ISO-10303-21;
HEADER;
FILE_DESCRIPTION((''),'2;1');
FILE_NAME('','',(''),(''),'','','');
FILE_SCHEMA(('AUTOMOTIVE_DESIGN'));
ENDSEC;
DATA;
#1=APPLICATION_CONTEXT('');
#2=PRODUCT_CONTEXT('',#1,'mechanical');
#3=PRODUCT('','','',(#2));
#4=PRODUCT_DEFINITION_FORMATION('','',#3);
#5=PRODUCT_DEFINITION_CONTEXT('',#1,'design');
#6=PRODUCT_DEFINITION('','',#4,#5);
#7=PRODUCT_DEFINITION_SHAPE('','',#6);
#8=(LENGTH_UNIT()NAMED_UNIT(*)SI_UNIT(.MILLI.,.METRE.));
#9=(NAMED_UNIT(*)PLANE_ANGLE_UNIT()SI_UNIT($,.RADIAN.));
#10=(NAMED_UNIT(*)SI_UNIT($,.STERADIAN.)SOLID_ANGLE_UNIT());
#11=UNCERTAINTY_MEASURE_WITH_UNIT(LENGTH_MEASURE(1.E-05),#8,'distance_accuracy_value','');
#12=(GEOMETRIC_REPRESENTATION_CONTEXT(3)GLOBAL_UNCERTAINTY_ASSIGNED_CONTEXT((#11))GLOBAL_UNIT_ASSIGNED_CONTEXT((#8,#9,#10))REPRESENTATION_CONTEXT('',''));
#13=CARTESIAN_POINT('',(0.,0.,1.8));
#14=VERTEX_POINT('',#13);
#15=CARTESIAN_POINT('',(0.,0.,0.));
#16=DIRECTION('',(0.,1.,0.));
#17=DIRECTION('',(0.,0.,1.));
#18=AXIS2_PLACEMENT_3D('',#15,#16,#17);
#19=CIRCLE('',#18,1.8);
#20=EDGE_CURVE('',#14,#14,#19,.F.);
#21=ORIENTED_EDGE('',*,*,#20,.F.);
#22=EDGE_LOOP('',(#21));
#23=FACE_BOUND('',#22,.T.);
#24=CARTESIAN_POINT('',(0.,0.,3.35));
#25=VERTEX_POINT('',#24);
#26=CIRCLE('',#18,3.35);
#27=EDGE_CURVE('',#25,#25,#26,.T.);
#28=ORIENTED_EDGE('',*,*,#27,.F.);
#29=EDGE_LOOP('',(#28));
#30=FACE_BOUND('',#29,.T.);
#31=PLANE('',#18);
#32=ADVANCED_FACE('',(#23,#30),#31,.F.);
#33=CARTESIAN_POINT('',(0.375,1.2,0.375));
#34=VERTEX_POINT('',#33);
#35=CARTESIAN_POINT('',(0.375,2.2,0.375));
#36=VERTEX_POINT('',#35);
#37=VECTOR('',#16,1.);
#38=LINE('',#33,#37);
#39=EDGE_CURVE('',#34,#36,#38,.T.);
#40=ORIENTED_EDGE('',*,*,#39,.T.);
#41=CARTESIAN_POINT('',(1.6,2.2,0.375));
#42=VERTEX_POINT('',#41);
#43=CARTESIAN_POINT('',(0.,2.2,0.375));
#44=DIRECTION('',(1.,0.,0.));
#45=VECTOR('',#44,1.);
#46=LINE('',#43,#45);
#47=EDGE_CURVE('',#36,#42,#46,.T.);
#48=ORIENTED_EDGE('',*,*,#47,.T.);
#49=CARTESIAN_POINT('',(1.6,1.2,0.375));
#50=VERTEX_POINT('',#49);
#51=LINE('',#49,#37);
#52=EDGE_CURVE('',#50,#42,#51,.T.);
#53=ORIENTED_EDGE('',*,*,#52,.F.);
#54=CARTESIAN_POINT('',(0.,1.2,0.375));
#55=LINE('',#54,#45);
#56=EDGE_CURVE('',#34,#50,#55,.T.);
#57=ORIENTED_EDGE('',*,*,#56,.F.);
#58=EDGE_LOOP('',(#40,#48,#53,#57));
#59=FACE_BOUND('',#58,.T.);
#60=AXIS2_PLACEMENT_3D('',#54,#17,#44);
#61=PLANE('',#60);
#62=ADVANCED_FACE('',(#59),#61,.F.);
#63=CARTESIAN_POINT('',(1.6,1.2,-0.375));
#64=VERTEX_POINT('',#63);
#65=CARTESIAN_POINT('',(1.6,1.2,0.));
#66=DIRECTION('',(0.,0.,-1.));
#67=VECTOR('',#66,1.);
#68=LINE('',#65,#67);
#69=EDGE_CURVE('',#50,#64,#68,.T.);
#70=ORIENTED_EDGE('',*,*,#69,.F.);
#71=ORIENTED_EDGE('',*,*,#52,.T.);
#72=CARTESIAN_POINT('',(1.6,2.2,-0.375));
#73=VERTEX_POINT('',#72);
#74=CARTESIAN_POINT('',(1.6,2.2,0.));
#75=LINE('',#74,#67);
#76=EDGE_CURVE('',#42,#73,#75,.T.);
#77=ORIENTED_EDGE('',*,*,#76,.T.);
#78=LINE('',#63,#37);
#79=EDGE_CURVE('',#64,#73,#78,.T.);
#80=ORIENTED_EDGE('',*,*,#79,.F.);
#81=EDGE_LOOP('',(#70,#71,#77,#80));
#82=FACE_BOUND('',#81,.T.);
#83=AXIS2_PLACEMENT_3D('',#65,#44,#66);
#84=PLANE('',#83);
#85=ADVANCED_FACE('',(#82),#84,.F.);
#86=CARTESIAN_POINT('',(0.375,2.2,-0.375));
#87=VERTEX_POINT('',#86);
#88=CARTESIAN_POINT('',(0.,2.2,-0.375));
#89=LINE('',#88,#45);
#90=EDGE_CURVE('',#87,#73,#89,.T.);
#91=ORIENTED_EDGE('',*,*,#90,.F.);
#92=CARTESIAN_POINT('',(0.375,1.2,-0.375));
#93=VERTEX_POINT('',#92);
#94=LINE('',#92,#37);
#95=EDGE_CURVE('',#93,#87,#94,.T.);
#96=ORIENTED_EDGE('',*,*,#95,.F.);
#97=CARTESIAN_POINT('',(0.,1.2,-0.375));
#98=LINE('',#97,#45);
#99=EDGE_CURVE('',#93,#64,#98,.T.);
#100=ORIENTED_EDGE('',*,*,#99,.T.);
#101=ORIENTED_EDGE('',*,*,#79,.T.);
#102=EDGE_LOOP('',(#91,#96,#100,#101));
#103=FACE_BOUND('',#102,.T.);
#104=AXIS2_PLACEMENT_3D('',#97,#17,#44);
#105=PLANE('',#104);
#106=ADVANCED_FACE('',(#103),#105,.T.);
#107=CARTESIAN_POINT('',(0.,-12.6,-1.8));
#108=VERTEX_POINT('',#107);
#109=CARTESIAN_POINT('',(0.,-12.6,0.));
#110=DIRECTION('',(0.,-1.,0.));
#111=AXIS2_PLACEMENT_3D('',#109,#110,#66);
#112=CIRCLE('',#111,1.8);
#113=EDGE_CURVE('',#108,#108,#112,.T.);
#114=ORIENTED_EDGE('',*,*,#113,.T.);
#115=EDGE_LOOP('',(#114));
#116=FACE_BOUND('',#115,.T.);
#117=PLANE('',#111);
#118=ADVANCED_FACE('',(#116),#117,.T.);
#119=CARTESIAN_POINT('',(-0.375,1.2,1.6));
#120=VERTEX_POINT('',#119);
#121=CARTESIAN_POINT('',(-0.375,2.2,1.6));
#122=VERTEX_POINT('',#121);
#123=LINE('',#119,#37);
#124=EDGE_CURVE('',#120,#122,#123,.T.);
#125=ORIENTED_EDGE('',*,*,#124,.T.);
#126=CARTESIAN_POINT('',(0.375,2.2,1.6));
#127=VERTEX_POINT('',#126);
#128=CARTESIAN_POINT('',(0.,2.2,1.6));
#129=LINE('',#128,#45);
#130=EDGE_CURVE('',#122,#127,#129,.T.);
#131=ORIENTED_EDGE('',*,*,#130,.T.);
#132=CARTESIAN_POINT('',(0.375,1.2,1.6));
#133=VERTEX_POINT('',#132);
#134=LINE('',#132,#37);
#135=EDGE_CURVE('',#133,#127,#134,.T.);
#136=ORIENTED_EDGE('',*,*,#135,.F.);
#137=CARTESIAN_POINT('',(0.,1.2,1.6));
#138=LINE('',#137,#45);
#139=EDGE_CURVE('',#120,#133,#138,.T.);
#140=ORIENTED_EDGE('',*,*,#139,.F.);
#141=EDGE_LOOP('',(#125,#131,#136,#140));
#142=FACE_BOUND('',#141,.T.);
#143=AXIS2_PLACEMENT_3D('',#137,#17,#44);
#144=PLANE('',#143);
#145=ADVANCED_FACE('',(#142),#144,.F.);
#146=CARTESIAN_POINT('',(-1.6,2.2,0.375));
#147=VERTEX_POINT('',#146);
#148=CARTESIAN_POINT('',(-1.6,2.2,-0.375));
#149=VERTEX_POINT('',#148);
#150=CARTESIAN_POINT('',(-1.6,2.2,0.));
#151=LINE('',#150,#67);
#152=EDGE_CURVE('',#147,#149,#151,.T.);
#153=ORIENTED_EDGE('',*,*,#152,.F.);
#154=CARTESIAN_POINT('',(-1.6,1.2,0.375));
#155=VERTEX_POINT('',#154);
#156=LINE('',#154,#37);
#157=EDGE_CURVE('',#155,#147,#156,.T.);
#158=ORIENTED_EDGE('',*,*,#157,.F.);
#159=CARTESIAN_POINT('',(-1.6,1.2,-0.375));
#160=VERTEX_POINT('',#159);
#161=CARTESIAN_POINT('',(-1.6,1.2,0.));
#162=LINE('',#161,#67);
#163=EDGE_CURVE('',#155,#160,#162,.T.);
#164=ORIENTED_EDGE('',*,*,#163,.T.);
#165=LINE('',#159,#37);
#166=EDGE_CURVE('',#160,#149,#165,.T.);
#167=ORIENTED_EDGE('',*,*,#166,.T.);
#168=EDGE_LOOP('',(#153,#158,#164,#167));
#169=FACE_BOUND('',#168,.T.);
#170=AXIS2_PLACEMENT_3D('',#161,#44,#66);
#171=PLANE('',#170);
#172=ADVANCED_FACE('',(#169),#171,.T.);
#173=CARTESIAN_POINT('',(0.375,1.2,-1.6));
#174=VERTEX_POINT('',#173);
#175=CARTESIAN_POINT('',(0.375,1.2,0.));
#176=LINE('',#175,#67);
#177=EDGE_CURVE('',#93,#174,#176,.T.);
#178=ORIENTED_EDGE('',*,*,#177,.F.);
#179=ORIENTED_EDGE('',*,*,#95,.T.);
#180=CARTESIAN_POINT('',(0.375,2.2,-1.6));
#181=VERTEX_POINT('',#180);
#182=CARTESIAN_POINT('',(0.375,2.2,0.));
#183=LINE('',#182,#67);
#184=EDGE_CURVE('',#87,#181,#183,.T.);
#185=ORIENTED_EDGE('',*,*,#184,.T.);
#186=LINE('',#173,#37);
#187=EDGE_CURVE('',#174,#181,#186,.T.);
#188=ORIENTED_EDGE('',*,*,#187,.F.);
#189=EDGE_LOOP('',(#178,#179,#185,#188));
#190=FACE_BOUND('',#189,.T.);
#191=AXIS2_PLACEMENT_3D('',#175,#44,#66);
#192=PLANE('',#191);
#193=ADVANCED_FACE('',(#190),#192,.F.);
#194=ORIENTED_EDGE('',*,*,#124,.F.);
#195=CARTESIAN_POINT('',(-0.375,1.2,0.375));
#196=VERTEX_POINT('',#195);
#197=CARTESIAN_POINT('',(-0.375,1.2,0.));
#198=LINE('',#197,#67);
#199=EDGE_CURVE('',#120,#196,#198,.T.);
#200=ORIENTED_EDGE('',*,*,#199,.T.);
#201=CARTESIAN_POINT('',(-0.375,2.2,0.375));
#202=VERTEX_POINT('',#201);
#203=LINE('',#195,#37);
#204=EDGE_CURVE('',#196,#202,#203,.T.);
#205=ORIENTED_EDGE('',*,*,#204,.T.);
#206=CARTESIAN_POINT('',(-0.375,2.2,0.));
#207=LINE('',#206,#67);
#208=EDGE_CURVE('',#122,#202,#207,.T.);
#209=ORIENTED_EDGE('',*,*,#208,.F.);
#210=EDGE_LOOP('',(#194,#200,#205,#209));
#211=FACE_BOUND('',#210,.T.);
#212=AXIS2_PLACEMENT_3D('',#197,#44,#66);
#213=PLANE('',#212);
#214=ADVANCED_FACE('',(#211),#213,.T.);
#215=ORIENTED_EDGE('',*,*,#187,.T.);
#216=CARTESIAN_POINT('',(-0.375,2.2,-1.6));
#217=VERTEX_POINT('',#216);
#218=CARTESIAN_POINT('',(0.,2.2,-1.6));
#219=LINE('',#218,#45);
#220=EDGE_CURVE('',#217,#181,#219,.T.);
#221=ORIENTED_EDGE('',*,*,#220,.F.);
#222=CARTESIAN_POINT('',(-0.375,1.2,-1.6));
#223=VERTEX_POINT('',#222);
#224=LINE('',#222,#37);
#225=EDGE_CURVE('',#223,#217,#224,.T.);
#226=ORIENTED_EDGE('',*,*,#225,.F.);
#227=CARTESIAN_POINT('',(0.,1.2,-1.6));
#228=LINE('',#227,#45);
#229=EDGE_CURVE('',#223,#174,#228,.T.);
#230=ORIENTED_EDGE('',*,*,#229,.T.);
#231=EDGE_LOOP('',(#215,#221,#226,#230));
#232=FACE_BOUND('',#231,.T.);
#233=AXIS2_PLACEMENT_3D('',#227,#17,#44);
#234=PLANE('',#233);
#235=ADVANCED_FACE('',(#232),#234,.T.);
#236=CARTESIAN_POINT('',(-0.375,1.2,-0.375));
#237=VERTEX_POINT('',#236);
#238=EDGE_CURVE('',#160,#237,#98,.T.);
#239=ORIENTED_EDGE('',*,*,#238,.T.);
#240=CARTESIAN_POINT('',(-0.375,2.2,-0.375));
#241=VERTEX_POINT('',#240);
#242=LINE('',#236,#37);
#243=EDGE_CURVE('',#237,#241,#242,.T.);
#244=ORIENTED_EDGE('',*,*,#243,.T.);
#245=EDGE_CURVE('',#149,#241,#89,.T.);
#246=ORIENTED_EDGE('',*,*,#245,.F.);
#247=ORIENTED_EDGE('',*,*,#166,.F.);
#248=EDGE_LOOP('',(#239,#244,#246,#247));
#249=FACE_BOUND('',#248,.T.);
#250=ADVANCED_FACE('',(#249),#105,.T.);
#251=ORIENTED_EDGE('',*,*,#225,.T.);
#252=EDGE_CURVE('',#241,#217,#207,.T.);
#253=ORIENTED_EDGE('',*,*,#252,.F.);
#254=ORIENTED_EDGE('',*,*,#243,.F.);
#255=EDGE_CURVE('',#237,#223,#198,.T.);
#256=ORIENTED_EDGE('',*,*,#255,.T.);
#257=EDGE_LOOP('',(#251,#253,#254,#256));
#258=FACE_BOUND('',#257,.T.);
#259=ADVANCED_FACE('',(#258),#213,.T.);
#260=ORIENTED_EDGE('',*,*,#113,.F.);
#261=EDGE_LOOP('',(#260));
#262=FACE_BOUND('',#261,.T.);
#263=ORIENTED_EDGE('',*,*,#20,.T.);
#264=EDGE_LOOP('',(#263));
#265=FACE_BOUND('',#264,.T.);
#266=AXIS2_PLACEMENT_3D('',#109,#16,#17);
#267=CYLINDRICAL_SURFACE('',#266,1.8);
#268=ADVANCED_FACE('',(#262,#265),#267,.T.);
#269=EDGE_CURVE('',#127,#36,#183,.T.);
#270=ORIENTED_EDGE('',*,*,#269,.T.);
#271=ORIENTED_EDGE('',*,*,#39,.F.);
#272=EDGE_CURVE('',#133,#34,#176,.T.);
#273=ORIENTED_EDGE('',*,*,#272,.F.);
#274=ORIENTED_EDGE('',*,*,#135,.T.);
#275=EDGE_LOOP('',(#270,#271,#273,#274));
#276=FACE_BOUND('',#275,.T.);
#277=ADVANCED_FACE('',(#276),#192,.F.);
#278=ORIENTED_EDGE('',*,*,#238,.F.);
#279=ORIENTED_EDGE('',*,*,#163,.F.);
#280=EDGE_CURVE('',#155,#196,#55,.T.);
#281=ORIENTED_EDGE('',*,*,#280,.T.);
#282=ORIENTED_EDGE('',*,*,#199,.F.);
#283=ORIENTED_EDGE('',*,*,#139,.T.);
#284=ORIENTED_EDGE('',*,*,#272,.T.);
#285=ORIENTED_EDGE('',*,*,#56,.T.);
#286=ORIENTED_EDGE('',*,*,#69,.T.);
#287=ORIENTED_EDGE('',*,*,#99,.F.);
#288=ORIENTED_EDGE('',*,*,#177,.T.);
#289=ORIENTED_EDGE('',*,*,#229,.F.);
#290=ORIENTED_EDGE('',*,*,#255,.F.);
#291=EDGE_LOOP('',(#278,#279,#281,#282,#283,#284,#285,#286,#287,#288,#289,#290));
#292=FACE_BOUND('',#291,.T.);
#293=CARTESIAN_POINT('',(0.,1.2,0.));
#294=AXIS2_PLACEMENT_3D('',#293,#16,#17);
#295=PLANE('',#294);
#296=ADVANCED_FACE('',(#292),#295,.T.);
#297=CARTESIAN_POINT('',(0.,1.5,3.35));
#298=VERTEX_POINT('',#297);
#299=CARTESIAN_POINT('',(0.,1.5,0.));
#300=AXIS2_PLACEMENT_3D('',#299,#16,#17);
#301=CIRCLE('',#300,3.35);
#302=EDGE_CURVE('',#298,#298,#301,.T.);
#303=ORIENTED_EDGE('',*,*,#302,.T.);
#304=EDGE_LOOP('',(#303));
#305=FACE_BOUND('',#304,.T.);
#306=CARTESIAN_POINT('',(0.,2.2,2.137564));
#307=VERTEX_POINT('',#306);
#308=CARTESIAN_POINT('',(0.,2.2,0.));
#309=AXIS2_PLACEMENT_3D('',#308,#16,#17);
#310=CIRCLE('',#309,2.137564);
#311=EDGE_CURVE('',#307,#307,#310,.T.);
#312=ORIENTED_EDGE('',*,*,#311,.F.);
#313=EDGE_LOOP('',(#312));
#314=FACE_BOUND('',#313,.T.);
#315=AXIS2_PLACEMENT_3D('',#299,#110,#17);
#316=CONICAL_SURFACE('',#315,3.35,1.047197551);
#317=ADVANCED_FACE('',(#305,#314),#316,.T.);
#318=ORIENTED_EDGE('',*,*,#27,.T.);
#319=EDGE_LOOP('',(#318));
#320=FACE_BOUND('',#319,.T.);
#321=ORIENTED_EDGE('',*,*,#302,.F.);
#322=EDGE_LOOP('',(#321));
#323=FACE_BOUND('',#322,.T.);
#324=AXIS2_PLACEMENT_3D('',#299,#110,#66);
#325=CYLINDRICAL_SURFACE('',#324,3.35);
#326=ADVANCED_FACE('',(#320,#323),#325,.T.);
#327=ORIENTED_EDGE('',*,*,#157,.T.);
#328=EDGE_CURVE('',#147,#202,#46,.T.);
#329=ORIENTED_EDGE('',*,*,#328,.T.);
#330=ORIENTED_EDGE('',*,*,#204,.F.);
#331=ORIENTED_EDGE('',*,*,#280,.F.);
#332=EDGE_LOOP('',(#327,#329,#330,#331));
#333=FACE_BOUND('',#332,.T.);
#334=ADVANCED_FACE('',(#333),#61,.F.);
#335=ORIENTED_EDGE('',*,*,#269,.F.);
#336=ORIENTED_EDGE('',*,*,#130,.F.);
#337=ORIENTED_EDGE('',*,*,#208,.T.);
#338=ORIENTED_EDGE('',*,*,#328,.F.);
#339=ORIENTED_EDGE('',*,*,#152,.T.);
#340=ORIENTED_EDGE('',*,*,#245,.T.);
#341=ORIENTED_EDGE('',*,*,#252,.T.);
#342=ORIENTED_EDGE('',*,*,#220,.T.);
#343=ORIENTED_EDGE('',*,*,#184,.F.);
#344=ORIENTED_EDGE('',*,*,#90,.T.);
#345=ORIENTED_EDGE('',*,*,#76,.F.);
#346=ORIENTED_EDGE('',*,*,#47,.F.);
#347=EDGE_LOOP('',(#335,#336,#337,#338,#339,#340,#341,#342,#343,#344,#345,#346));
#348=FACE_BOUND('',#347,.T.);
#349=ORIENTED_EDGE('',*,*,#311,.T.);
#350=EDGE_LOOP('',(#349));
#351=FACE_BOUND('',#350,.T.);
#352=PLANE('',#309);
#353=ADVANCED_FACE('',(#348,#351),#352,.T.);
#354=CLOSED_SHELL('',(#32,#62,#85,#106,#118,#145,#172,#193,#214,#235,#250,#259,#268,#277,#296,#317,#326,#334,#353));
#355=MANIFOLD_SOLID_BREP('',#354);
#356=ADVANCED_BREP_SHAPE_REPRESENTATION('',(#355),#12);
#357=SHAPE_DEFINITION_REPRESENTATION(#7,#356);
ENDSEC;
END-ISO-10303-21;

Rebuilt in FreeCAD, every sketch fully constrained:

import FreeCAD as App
import Part
import Sketcher
from FreeCAD import Vector
Q = App.Units.Quantity

doc = App.newDocument("Part")
body = doc.addObject("PartDesign::Body", "Body")

# Sketch on XZ plane
sketch1 = doc.addObject("Sketcher::SketchObject", "Sketch")
body.addObject(sketch1)
sketch1.AttachmentSupport = (doc.XZ_Plane, [""])
sketch1.MapMode = "FlatFace"
sketch1.addGeometry(Part.Circle(Vector(0, 0, 0), Vector(0, 0, 1), 3.4), False)
sketch1.addConstraint(Sketcher.Constraint("Coincident", 0, 3, -1, 1))
sketch1.addConstraint(Sketcher.Constraint("Diameter", 0, Q("6.7 mm")))
pad1 = doc.addObject("PartDesign::Pad", "Pad")
body.addObject(pad1)
pad1.Profile = sketch1
pad1.Length = 1.5
pad1.Reversed = True

# Sketch on XZ plane
sketch2 = doc.addObject("Sketcher::SketchObject", "Sketch001")
body.addObject(sketch2)
sketch2.AttachmentSupport = (doc.XZ_Plane, [""])
sketch2.MapMode = "FlatFace"
sketch2.AttachmentOffset = App.Placement(Vector(0, 0, -1.5), App.Rotation())
sketch2.addGeometry(Part.Circle(Vector(0, 0, 0), Vector(0, 0, 1), 3.4), False)
sketch2.addConstraint(Sketcher.Constraint("Coincident", 0, 3, -1, 1))
sketch2.addConstraint(Sketcher.Constraint("Diameter", 0, Q("6.7 mm")))
pad2 = doc.addObject("PartDesign::Pad", "Pad001")
body.addObject(pad2)
pad2.Profile = sketch2
pad2.Length = 0.7
pad2.Reversed = True
pad2.TaperAngle = -60

# Sketch on XZ plane
sketch3 = doc.addObject("Sketcher::SketchObject", "Sketch002")
body.addObject(sketch3)
sketch3.AttachmentSupport = (doc.XZ_Plane, [""])
sketch3.MapMode = "FlatFace"
sketch3.AttachmentOffset = App.Placement(Vector(0, 0, -2.2), App.Rotation())
sketch3.addGeometry(Part.LineSegment(Vector(-1.6, -0.4, 0), Vector(-1.6, 0.4, 0)), False)
sketch3.addGeometry(Part.LineSegment(Vector(-1.6, 0.4, 0), Vector(-0.4, 0.4, 0)), False)
sketch3.addGeometry(Part.LineSegment(Vector(-0.4, 0.4, 0), Vector(-0.4, 1.6, 0)), False)
sketch3.addGeometry(Part.LineSegment(Vector(-0.4, 1.6, 0), Vector(0.4, 1.6, 0)), False)
sketch3.addGeometry(Part.LineSegment(Vector(0.4, 1.6, 0), Vector(0.4, 0.4, 0)), False)
sketch3.addGeometry(Part.LineSegment(Vector(0.4, 0.4, 0), Vector(1.6, 0.4, 0)), False)
sketch3.addGeometry(Part.LineSegment(Vector(1.6, 0.4, 0), Vector(1.6, -0.4, 0)), False)
sketch3.addGeometry(Part.LineSegment(Vector(1.6, -0.4, 0), Vector(0.4, -0.4, 0)), False)
sketch3.addGeometry(Part.LineSegment(Vector(0.4, -0.4, 0), Vector(0.4, -1.6, 0)), False)
sketch3.addGeometry(Part.LineSegment(Vector(0.4, -1.6, 0), Vector(-0.4, -1.6, 0)), False)
sketch3.addGeometry(Part.LineSegment(Vector(-0.4, -1.6, 0), Vector(-0.4, -0.4, 0)), False)
sketch3.addGeometry(Part.LineSegment(Vector(-0.4, -0.4, 0), Vector(-1.6, -0.4, 0)), False)
sketch3.addConstraint(Sketcher.Constraint("Coincident", 0, 2, 1, 1))
sketch3.addConstraint(Sketcher.Constraint("Coincident", 1, 2, 2, 1))
sketch3.addConstraint(Sketcher.Constraint("Coincident", 2, 2, 3, 1))
sketch3.addConstraint(Sketcher.Constraint("Coincident", 3, 2, 4, 1))
sketch3.addConstraint(Sketcher.Constraint("Coincident", 4, 2, 5, 1))
sketch3.addConstraint(Sketcher.Constraint("Coincident", 5, 2, 6, 1))
sketch3.addConstraint(Sketcher.Constraint("Coincident", 6, 2, 7, 1))
sketch3.addConstraint(Sketcher.Constraint("Coincident", 7, 2, 8, 1))
sketch3.addConstraint(Sketcher.Constraint("Coincident", 8, 2, 9, 1))
sketch3.addConstraint(Sketcher.Constraint("Coincident", 9, 2, 10, 1))
sketch3.addConstraint(Sketcher.Constraint("Coincident", 10, 2, 11, 1))
sketch3.addConstraint(Sketcher.Constraint("Coincident", 11, 2, 0, 1))
sketch3.addConstraint(Sketcher.Constraint("Vertical", 0))
sketch3.addConstraint(Sketcher.Constraint("Horizontal", 1))
sketch3.addConstraint(Sketcher.Constraint("Vertical", 2))
sketch3.addConstraint(Sketcher.Constraint("Horizontal", 3))
sketch3.addConstraint(Sketcher.Constraint("Vertical", 4))
sketch3.addConstraint(Sketcher.Constraint("Horizontal", 5))
sketch3.addConstraint(Sketcher.Constraint("Vertical", 6))
sketch3.addConstraint(Sketcher.Constraint("Horizontal", 7))
sketch3.addConstraint(Sketcher.Constraint("Vertical", 8))
sketch3.addConstraint(Sketcher.Constraint("Horizontal", 9))
sketch3.addConstraint(Sketcher.Constraint("Vertical", 10))
sketch3.addConstraint(Sketcher.Constraint("Horizontal", 11))
sketch3.addConstraint(Sketcher.Constraint("Symmetric", 0, 2, 6, 2, -1, 1))
sketch3.addConstraint(Sketcher.Constraint("Symmetric", 2, 2, 8, 2, -1, 1))
sketch3.addConstraint(Sketcher.Constraint("Symmetric", 4, 2, 10, 2, -1, 1))
sketch3.addConstraint(Sketcher.Constraint("Symmetric", 1, 2, 4, 2, -2))
sketch3.addConstraint(Sketcher.Constraint("Equal", 9, 0))
sketch3.addConstraint(Sketcher.Constraint("Equal", 11, 2))
sketch3.addConstraint(Sketcher.Constraint("DistanceX", 3, 1, 3, 2, Q("0.75 mm")))
sketch3.addConstraint(Sketcher.Constraint("DistanceX", 0, 2, -1, 1, Q("1.6 mm")))
pocket1 = doc.addObject("PartDesign::Pocket", "Pocket")
body.addObject(pocket1)
pocket1.Profile = sketch3
pocket1.Length = 1
pocket1.Reversed = True

# Sketch on XZ plane
sketch4 = doc.addObject("Sketcher::SketchObject", "Sketch003")
body.addObject(sketch4)
sketch4.AttachmentSupport = (doc.XZ_Plane, [""])
sketch4.MapMode = "FlatFace"
sketch4.addGeometry(Part.Circle(Vector(0, 0, 0), Vector(0, 0, 1), 1.8), False)
sketch4.addConstraint(Sketcher.Constraint("Coincident", 0, 3, -1, 1))
sketch4.addConstraint(Sketcher.Constraint("Diameter", 0, Q("3.6 mm")))
pad3 = doc.addObject("PartDesign::Pad", "Pad002")
body.addObject(pad3)
pad3.Profile = sketch4
pad3.Length = 12.6

doc.recompute()
